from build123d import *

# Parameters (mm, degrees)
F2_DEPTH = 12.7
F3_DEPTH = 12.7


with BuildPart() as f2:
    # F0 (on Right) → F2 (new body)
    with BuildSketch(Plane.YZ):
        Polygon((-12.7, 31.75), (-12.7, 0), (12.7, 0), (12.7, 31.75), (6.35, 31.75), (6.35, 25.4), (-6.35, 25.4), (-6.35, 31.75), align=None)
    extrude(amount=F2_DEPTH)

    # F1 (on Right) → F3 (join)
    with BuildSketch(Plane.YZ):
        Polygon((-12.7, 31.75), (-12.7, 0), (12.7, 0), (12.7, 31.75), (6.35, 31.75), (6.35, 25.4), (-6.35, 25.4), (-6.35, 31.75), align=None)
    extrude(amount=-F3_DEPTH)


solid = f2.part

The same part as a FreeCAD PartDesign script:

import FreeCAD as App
import Part
import Sketcher
Q = App.Units.Quantity

doc = App.newDocument("Part")
body = doc.addObject("PartDesign::Body", "Body")

# Sketch on YZ plane
sketch1 = body.newObject("Sketcher::SketchObject", "Sketch")
sketch1.AttachmentSupport = (doc.getObject("YZ_Plane"), [""])
sketch1.MapMode = "FlatFace"
sketch1.addGeometry([
    Part.LineSegment(App.Vector(-13, 32, 0), App.Vector(-13, 0, 0)),  # 0
    Part.LineSegment(App.Vector(-13, 0, 0), App.Vector(13, 0, 0)),  # 1
    Part.LineSegment(App.Vector(13, 0, 0), App.Vector(13, 32, 0)),  # 2
    Part.LineSegment(App.Vector(13, 32, 0), App.Vector(6, 32, 0)),  # 3
    Part.LineSegment(App.Vector(6, 32, 0), App.Vector(6, 25, 0)),  # 4
    Part.LineSegment(App.Vector(6, 25, 0), App.Vector(-6, 25, 0)),  # 5
    Part.LineSegment(App.Vector(-6, 25, 0), App.Vector(-6, 32, 0)),  # 6
    Part.LineSegment(App.Vector(-6, 32, 0), App.Vector(-13, 32, 0)),  # 7
], False)
sketch1.addConstraint([
    Sketcher.Constraint("Coincident", 0, 2, 1, 1),
    Sketcher.Constraint("Coincident", 1, 2, 2, 1),
    Sketcher.Constraint("Coincident", 2, 2, 3, 1),
    Sketcher.Constraint("Coincident", 3, 2, 4, 1),
    Sketcher.Constraint("Coincident", 4, 2, 5, 1),
    Sketcher.Constraint("Coincident", 5, 2, 6, 1),
    Sketcher.Constraint("Coincident", 6, 2, 7, 1),
    Sketcher.Constraint("Coincident", 7, 2, 0, 1),
    Sketcher.Constraint("Vertical", 0),
    Sketcher.Constraint("Horizontal", 1),
    Sketcher.Constraint("Vertical", 2),
    Sketcher.Constraint("Horizontal", 3),
    Sketcher.Constraint("Vertical", 4),
    Sketcher.Constraint("Horizontal", 5),
    Sketcher.Constraint("Vertical", 6),
    Sketcher.Constraint("Horizontal", 7),
    Sketcher.Constraint("Symmetric", 0, 2, 1, 2, -1, 1),
    Sketcher.Constraint("Symmetric", 3, 2, 6, 2, -2),
    Sketcher.Constraint("Equal", 7, 4),
    Sketcher.Constraint("DistanceX", 1, 1, 1, 2, Q("1 in")),
    Sketcher.Constraint("DistanceX", 5, 2, 5, 1, Q("0.5 in")),
    Sketcher.Constraint("DistanceY", -1, 1, 4, 2, Q("1 in")),
])
pad1 = body.newObject("PartDesign::Pad", "Pad")
pad1.Profile = sketch1
pad1.Length = Q("0.5 in")

# Sketch on YZ plane
sketch2 = body.newObject("Sketcher::SketchObject", "Sketch001")
sketch2.AttachmentSupport = (doc.getObject("YZ_Plane"), [""])
sketch2.MapMode = "FlatFace"
sketch2.addGeometry([
    Part.LineSegment(App.Vector(-13, 32, 0), App.Vector(-13, 0, 0)),  # 0
    Part.LineSegment(App.Vector(-13, 0, 0), App.Vector(13, 0, 0)),  # 1
    Part.LineSegment(App.Vector(13, 0, 0), App.Vector(13, 32, 0)),  # 2
    Part.LineSegment(App.Vector(13, 32, 0), App.Vector(6, 32, 0)),  # 3
    Part.LineSegment(App.Vector(6, 32, 0), App.Vector(6, 25, 0)),  # 4
    Part.LineSegment(App.Vector(6, 25, 0), App.Vector(-6, 25, 0)),  # 5
    Part.LineSegment(App.Vector(-6, 25, 0), App.Vector(-6, 32, 0)),  # 6
    Part.LineSegment(App.Vector(-6, 32, 0), App.Vector(-13, 32, 0)),  # 7
], False)
sketch2.addConstraint([
    Sketcher.Constraint("Coincident", 0, 2, 1, 1),
    Sketcher.Constraint("Coincident", 1, 2, 2, 1),
    Sketcher.Constraint("Coincident", 2, 2, 3, 1),
    Sketcher.Constraint("Coincident", 3, 2, 4, 1),
    Sketcher.Constraint("Coincident", 4, 2, 5, 1),
    Sketcher.Constraint("Coincident", 5, 2, 6, 1),
    Sketcher.Constraint("Coincident", 6, 2, 7, 1),
    Sketcher.Constraint("Coincident", 7, 2, 0, 1),
    Sketcher.Constraint("Vertical", 0),
    Sketcher.Constraint("Horizontal", 1),
    Sketcher.Constraint("Vertical", 2),
    Sketcher.Constraint("Horizontal", 3),
    Sketcher.Constraint("Vertical", 4),
    Sketcher.Constraint("Horizontal", 5),
    Sketcher.Constraint("Vertical", 6),
    Sketcher.Constraint("Horizontal", 7),
    Sketcher.Constraint("Symmetric", 0, 2, 1, 2, -1, 1),
    Sketcher.Constraint("Symmetric", 3, 2, 6, 2, -2),
    Sketcher.Constraint("Equal", 7, 4),
    Sketcher.Constraint("DistanceX", 1, 1, 1, 2, Q("1 in")),
    Sketcher.Constraint("DistanceX", 5, 2, 5, 1, Q("0.5 in")),
    Sketcher.Constraint("DistanceY", -1, 1, 4, 2, Q("1 in")),
])
pad2 = body.newObject("PartDesign::Pad", "Pad001")
pad2.Profile = sketch2
pad2.Length = Q("0.5 in")
pad2.Reversed = True

doc.recompute()
